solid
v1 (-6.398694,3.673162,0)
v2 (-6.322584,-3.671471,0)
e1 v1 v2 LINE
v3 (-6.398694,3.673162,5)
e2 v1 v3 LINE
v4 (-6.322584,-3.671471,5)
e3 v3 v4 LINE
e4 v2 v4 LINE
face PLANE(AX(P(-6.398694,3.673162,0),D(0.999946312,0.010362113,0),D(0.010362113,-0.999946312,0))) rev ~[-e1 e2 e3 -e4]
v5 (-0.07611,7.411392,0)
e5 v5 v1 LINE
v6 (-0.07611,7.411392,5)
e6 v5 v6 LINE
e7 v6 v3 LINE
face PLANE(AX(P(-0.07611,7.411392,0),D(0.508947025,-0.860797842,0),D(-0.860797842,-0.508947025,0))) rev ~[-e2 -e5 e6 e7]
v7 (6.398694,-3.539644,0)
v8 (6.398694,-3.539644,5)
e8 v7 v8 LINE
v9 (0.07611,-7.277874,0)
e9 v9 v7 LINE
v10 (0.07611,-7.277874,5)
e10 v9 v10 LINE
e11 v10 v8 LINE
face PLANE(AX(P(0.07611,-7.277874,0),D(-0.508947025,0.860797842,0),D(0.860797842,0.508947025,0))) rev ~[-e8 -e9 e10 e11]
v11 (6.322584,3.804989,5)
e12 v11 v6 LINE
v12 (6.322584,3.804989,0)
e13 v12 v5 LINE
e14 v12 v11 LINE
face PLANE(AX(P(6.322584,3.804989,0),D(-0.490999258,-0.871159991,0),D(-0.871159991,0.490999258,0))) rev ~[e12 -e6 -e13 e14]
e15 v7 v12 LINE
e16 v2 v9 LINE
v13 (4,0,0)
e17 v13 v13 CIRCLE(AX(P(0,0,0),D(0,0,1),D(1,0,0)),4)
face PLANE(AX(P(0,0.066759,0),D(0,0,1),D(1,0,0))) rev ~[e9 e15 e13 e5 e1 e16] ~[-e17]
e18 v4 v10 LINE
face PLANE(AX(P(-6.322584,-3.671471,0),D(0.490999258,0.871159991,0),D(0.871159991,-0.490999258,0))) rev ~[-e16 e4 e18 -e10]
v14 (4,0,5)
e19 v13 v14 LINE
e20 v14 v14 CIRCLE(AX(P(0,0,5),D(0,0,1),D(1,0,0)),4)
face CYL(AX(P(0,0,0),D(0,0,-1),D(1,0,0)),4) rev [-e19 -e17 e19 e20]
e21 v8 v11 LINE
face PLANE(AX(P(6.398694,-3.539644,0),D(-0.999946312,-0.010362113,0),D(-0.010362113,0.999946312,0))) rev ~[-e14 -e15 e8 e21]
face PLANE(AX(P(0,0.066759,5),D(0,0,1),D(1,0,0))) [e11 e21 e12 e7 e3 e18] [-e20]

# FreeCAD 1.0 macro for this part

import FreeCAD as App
import Part
import Sketcher
Q = App.Units.Quantity

doc = App.newDocument("Part")
body = doc.addObject("PartDesign::Body", "Body")

# Sketch on XY plane
sketch1 = body.newObject("Sketcher::SketchObject", "Sketch")
sketch1.AttachmentSupport = (doc.getObject("XY_Plane"), [""])
sketch1.MapMode = "FlatFace"
sketch1.addGeometry([
    Part.LineSegment(App.Vector(0.07611, -7.277874, 0), App.Vector(6.398694, -3.539644, 0)),  # 0
    Part.LineSegment(App.Vector(6.398694, -3.539644, 0), App.Vector(6.322584, 3.804989, 0)),  # 1
    Part.LineSegment(App.Vector(6.322584, 3.804989, 0), App.Vector(-0.07611, 7.411392, 0)),  # 2
    Part.LineSegment(App.Vector(-0.07611, 7.411392, 0), App.Vector(-6.398694, 3.673162, 0)),  # 3
    Part.LineSegment(App.Vector(-6.398694, 3.673162, 0), App.Vector(-6.322584, -3.671471, 0)),  # 4
    Part.LineSegment(App.Vector(-6.322584, -3.671471, 0), App.Vector(0.07611, -7.277874, 0)),  # 5
    Part.Circle(App.Vector(0, 0, 0), App.Vector(0, 0, 1), 4),  # 6
], False)
sketch1.addConstraint([
    Sketcher.Constraint("Coincident", 0, 2, 1, 1),
    Sketcher.Constraint("Coincident", 1, 2, 2, 1),
    Sketcher.Constraint("Coincident", 2, 2, 3, 1),
    Sketcher.Constraint("Coincident", 3, 2, 4, 1),
    Sketcher.Constraint("Coincident", 4, 2, 5, 1),
    Sketcher.Constraint("Coincident", 5, 2, 0, 1),
    Sketcher.Constraint("Coincident", 6, 3, -1, 1),
    Sketcher.Constraint("Parallel", 0, 3),
    Sketcher.Constraint("Parallel", 1, 4),
    Sketcher.Constraint("Parallel", 2, 5),
    Sketcher.Constraint("Equal", 0, 1),
    Sketcher.Constraint("Equal", 1, 2),
    Sketcher.Constraint("Equal", 2, 3),
    Sketcher.Constraint("Diameter", 6, Q("8 mm")),
    Sketcher.Constraint("DistanceY", -1, 1, 1, 2, Q("3.804989 mm")),
    Sketcher.Constraint("DistanceX", 2, 2, -1, 1, Q("0.07611 mm")),
    Sketcher.Constraint("DistanceY", -1, 1, 3, 2, Q("3.673162 mm")),
    Sketcher.Constraint("DistanceY", 4, 2, -1, 1, Q("3.671471 mm")),
    Sketcher.Constraint("DistanceX", -1, 1, 5, 2, Q("0.07611 mm")),
    Sketcher.Constraint("DistanceX", 1, 2, 0, 2, Q("0.07611 mm")),
])
pad1 = body.newObject("PartDesign::Pad", "Pad")
pad1.Profile = sketch1
pad1.Length = 5

doc.recompute()
